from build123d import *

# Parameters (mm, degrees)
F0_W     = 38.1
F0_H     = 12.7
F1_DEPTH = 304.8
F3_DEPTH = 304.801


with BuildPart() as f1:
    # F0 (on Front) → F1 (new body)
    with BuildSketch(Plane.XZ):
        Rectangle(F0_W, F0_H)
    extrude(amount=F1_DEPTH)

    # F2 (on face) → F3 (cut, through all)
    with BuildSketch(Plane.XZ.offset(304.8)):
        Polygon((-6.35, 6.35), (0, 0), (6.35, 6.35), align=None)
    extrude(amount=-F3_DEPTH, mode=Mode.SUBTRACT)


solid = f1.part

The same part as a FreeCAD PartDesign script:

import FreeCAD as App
import Part
import Sketcher
Q = App.Units.Quantity


def add_polygon(sketch, points):
    """Adds a closed chain of lines whose ends are joined by coincident constraints."""
    first, n = sketch.GeometryCount, len(points)
    for a, b in zip(points, points[1:] + points[:1]):
        sketch.addGeometry(Part.LineSegment(App.Vector(*a, 0), App.Vector(*b, 0)), False)
    for i in range(n):
        sketch.addConstraint(Sketcher.Constraint("Coincident", first + i, 2, first + (i + 1) % n, 1))

doc = App.newDocument("Part")
body = doc.addObject("PartDesign::Body", "Body")

# Sketch on XZ plane
sketch1 = body.newObject("Sketcher::SketchObject", "Sketch")
sketch1.AttachmentSupport = (doc.getObject("XZ_Plane"), [""])
sketch1.MapMode = "FlatFace"
add_polygon(sketch1, [(-19.05, 6.35), (-19.05, -6.35), (19.05, -6.35), (19.05, 6.35)])  # lines 0-3
sketch1.addConstraint([
    Sketcher.Constraint("Vertical", 0),
    Sketcher.Constraint("Horizontal", 1),
    Sketcher.Constraint("Vertical", 2),
    Sketcher.Constraint("Horizontal", 3),
    Sketcher.Constraint("Symmetric", 0, 2, 2, 2, -1, 1),
    Sketcher.Constraint("DistanceX", 1, 1, 1, 2, Q("1.5 in")),
    Sketcher.Constraint("DistanceY", 0, 2, 0, 1, Q("0.5 in")),
])
pad1 = body.newObject("PartDesign::Pad", "Pad")
pad1.Profile = sketch1
pad1.Length = Q("12 in")

# Sketch on XZ plane
sketch2 = body.newObject("Sketcher::SketchObject", "Sketch001")
sketch2.AttachmentSupport = (doc.getObject("XZ_Plane"), [""])
sketch2.MapMode = "FlatFace"
sketch2.AttachmentOffset = App.Placement(App.Vector(0, 0, 12 * 25.4), App.Rotation())
add_polygon(sketch2, [(-6.35, 6.35), (0, 0), (6.35, 6.35)])  # lines 0-2
sketch2.addConstraint([
    Sketcher.Constraint("Horizontal", 2),
    Sketcher.Constraint("Coincident", 0, 2, -1, 1),
    Sketcher.Constraint("Perpendicular", 0, 1),
    Sketcher.Constraint("Equal", 0, 1),
    Sketcher.Constraint("DistanceX", 2, 2, 2, 1, Q("0.5 in")),
])
pocket1 = body.newObject("PartDesign::Pocket", "Pocket")
pocket1.Profile = sketch2
pocket1.Type = "ThroughAll"

doc.recompute()
